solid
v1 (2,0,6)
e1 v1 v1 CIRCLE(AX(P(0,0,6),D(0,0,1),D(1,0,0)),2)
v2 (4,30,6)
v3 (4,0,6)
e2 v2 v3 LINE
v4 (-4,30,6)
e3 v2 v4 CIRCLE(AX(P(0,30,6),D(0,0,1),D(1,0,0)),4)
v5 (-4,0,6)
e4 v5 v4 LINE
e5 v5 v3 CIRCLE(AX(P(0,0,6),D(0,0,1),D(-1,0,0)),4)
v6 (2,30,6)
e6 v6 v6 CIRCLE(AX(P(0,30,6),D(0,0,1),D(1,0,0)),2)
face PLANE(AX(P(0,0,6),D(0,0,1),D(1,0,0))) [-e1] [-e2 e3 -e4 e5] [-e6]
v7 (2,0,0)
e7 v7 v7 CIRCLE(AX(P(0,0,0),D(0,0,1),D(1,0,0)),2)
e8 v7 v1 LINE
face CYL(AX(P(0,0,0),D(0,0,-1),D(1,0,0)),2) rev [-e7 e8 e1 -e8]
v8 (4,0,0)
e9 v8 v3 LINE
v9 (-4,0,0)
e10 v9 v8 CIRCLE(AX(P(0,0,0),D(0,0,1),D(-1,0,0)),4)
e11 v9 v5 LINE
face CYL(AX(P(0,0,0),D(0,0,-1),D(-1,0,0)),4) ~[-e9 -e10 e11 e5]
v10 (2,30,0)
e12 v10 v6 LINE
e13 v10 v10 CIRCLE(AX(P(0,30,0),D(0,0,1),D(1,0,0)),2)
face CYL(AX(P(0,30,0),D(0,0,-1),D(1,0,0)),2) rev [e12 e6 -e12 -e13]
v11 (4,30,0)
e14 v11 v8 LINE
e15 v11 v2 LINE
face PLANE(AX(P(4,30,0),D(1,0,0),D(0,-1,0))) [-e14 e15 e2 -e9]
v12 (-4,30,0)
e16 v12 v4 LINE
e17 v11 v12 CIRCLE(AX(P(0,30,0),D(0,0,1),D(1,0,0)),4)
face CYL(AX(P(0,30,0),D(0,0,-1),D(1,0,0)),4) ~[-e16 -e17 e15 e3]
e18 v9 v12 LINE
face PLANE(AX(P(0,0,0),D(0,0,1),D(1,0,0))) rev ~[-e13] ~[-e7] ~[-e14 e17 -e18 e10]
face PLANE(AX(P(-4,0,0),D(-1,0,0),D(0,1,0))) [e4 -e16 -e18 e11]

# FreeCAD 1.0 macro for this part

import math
import FreeCAD as App
import Part
import Sketcher

V = App.Vector

doc = App.newDocument("Part")
body = doc.addObject("PartDesign::Body", "Body")

# Sketch on XY plane
sketch1 = body.newObject("Sketcher::SketchObject", "Sketch")
sketch1.AttachmentSupport = (doc.getObject("XY_Plane"), [""])
sketch1.MapMode = "FlatFace"
sketch1.addGeometry([
    Part.LineSegment(V(-4, 30, 0), V(-4, 0, 0)),  # 0
    Part.ArcOfCircle(Part.Circle(V(0, 0, 0), V(0, 0, 1), 4), math.radians(180), math.radians(360)),  # 1
    Part.LineSegment(V(4, 0, 0), V(4, 30, 0)),  # 2
    Part.ArcOfCircle(Part.Circle(V(0, 30, 0), V(0, 0, 1), 4), math.radians(0), math.radians(180)),  # 3
    Part.Circle(V(0, 0, 0), V(0, 0, 1), 2),  # 4
    Part.Circle(V(0, 30, 0), V(0, 0, 1), 2),  # 5
], False)
sketch1.addConstraint([
    Sketcher.Constraint("Tangent", 0, 2, 1, 1),
    Sketcher.Constraint("Tangent", 1, 2, 2, 1),
    Sketcher.Constraint("Tangent", 2, 2, 3, 1),
    Sketcher.Constraint("Tangent", 3, 2, 0, 1),
    Sketcher.Constraint("Vertical", 0),
    Sketcher.Constraint("Vertical", 2),
    Sketcher.Constraint("Coincident", 1, 3, -1, 1),
    Sketcher.Constraint("Coincident", 4, 3, -1, 1),
    Sketcher.Constraint("Coincident", 5, 3, 3, 3),
    Sketcher.Constraint("Equal", 4, 5),
    Sketcher.Constraint("Diameter", 4, 4.0),
    Sketcher.Constraint("Radius", 1, 4.0),
    Sketcher.Constraint("DistanceY", 0, 2, 0, 1, 30.0),
])
pad1 = body.newObject("PartDesign::Pad", "Pad")
pad1.Profile = sketch1
pad1.Length = 6

doc.recompute()
